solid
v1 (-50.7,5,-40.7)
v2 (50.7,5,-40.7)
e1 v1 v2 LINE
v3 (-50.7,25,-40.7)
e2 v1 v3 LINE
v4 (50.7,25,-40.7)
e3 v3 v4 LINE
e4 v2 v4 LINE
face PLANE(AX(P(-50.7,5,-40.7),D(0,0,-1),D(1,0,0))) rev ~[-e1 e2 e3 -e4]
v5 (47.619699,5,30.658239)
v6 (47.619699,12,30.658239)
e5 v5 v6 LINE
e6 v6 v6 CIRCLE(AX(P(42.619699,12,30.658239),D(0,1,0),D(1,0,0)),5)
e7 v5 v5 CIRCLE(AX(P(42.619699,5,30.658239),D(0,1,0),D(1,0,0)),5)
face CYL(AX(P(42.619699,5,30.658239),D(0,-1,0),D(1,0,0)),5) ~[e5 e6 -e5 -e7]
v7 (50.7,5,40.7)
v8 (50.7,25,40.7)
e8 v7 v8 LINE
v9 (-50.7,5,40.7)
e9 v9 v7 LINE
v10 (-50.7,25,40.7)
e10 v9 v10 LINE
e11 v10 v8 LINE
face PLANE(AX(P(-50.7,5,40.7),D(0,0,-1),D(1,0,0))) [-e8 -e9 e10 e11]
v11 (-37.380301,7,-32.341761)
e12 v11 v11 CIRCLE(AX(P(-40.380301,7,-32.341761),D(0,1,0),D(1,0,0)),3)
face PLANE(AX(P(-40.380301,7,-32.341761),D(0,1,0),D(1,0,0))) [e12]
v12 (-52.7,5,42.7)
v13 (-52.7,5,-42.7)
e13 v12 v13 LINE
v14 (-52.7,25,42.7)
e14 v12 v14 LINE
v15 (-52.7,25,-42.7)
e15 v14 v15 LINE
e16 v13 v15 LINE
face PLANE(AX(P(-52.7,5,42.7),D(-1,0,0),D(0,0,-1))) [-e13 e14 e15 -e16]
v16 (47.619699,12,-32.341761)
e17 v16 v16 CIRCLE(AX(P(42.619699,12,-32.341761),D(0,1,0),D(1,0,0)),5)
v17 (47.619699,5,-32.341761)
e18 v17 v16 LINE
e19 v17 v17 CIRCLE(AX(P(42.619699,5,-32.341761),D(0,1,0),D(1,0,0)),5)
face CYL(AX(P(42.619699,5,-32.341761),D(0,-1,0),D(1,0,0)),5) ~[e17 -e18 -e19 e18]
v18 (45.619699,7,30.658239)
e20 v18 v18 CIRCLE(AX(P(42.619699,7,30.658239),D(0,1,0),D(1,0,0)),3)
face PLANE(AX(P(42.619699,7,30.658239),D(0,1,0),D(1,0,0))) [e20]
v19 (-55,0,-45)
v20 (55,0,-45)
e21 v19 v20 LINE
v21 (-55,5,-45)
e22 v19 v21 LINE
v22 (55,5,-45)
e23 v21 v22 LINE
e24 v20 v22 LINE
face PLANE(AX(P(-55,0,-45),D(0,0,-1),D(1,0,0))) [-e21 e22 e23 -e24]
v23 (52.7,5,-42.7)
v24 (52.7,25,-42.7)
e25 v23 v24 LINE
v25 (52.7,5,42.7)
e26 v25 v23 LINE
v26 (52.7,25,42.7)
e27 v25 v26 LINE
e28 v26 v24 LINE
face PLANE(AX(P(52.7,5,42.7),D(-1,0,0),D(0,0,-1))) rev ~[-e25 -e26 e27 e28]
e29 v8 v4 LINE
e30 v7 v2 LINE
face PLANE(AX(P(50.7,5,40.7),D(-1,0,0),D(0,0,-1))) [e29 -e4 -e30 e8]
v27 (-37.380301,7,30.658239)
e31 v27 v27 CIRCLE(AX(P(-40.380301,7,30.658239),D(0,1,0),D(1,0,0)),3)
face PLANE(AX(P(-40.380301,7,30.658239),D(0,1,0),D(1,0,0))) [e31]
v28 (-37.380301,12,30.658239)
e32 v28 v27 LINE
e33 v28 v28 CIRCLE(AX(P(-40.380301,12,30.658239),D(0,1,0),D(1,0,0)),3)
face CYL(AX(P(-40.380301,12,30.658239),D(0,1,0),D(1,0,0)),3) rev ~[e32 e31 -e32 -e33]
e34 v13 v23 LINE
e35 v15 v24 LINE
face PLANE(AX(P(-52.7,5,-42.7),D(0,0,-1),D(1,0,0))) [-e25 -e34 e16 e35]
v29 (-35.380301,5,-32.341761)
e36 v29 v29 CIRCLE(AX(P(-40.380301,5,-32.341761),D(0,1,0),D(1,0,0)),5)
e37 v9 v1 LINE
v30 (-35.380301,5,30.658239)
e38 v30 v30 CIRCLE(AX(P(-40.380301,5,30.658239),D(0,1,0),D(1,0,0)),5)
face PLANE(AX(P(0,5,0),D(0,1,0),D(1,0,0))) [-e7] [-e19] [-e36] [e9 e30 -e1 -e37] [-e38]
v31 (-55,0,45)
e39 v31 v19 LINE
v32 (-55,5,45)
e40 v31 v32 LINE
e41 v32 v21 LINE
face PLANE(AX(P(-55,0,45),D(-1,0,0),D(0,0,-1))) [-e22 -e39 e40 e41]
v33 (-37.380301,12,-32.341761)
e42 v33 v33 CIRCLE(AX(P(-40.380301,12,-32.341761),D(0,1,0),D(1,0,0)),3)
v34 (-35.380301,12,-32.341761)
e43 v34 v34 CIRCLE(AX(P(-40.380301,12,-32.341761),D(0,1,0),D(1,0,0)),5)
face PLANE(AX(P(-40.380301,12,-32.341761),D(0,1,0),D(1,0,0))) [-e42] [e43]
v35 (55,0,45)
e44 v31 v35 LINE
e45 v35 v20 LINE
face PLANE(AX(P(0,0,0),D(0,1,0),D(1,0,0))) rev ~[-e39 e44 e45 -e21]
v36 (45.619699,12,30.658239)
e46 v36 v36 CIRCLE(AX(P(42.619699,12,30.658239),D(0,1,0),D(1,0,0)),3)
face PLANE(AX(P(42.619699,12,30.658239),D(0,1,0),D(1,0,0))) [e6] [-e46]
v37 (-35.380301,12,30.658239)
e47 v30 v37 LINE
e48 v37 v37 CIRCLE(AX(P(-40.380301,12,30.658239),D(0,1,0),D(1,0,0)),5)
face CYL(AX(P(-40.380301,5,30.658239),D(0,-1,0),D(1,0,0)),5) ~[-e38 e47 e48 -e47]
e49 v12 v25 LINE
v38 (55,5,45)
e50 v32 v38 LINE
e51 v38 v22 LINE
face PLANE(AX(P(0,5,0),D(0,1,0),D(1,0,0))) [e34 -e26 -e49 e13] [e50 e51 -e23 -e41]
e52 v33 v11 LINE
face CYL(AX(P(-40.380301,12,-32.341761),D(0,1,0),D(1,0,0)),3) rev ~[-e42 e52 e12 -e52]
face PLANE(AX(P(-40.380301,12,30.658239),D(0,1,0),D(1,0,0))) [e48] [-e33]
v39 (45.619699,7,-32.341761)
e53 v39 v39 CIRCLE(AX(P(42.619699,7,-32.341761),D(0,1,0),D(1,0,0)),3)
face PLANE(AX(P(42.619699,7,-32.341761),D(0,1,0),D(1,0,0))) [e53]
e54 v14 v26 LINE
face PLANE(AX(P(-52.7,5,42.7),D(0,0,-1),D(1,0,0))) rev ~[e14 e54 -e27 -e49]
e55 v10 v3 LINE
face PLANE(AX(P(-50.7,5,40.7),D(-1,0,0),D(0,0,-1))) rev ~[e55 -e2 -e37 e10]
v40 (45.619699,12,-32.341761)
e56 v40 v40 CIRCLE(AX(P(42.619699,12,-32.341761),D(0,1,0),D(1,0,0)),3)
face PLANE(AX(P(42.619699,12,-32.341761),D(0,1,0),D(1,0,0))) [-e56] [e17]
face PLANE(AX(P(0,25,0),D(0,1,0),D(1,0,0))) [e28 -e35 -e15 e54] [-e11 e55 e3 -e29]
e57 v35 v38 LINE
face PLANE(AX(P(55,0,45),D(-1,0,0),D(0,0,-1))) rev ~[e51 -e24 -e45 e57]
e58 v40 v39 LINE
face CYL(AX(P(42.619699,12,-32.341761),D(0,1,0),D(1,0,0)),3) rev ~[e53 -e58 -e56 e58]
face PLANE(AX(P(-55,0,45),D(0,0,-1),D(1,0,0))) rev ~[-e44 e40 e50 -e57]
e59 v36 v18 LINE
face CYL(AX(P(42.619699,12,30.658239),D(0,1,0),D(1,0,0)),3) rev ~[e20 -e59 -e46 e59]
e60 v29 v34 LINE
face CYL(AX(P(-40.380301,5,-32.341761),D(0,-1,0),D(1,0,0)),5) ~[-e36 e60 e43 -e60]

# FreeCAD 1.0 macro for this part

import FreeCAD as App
import Part
import Sketcher

doc = App.newDocument("Part")
body = doc.addObject("PartDesign::Body", "Body")

# Sketch on XZ plane
sketch1 = body.newObject("Sketcher::SketchObject", "Sketch")
sketch1.AttachmentSupport = (doc.getObject("XZ_Plane"), [""])
sketch1.MapMode = "FlatFace"
sketch1.addGeometry(Part.LineSegment(App.Vector(-55, -45, 0), App.Vector(-55, 45, 0)), False)
sketch1.addGeometry(Part.LineSegment(App.Vector(-55, 45, 0), App.Vector(55, 45, 0)), False)
sketch1.addGeometry(Part.LineSegment(App.Vector(55, 45, 0), App.Vector(55, -45, 0)), False)
sketch1.addGeometry(Part.LineSegment(App.Vector(55, -45, 0), App.Vector(-55, -45, 0)), False)
sketch1.addConstraint(Sketcher.Constraint("Coincident", 0, 2, 1, 1))
sketch1.addConstraint(Sketcher.Constraint("Coincident", 1, 2, 2, 1))
sketch1.addConstraint(Sketcher.Constraint("Coincident", 2, 2, 3, 1))
sketch1.addConstraint(Sketcher.Constraint("Coincident", 3, 2, 0, 1))
sketch1.addConstraint(Sketcher.Constraint("Vertical", 0))
sketch1.addConstraint(Sketcher.Constraint("Horizontal", 1))
sketch1.addConstraint(Sketcher.Constraint("Vertical", 2))
sketch1.addConstraint(Sketcher.Constraint("Horizontal", 3))
sketch1.addConstraint(Sketcher.Constraint("Symmetric", 0, 2, 2, 2, -1, 1))
sketch1.addConstraint(Sketcher.Constraint("DistanceX", 1, 1, 1, 2, 110.0))
sketch1.addConstraint(Sketcher.Constraint("DistanceY", 0, 1, 0, 2, 90.0))
pad1 = body.newObject("PartDesign::Pad", "Pad")
pad1.Profile = sketch1
pad1.Length = 5
pad1.Reversed = True

# Sketch on XZ plane
sketch2 = body.newObject("Sketcher::SketchObject", "Sketch001")
sketch2.AttachmentSupport = (doc.getObject("XZ_Plane"), [""])
sketch2.MapMode = "FlatFace"
sketch2.AttachmentOffset = App.Placement(App.Vector(0, 0, -5), App.Rotation())
sketch2.addGeometry(Part.LineSegment(App.Vector(-52.7, -42.7, 0), App.Vector(-52.7, 42.7, 0)), False)
sketch2.addGeometry(Part.LineSegment(App.Vector(-52.7, 42.7, 0), App.Vector(52.7, 42.7, 0)), False)
sketch2.addGeometry(Part.LineSegment(App.Vector(52.7, 42.7, 0), App.Vector(52.7, -42.7, 0)), False)
sketch2.addGeometry(Part.LineSegment(App.Vector(52.7, -42.7, 0), App.Vector(-52.7, -42.7, 0)), False)
sketch2.addGeometry(Part.LineSegment(App.Vector(50.7, 40.7, 0), App.Vector(-50.7, 40.7, 0)), False)
sketch2.addGeometry(Part.LineSegment(App.Vector(-50.7, 40.7, 0), App.Vector(-50.7, -40.7, 0)), False)
sketch2.addGeometry(Part.LineSegment(App.Vector(-50.7, -40.7, 0), App.Vector(50.7, -40.7, 0)), False)
sketch2.addGeometry(Part.LineSegment(App.Vector(50.7, -40.7, 0), App.Vector(50.7, 40.7, 0)), False)
sketch2.addConstraint(Sketcher.Constraint("Coincident", 0, 2, 1, 1))
sketch2.addConstraint(Sketcher.Constraint("Coincident", 1, 2, 2, 1))
sketch2.addConstraint(Sketcher.Constraint("Coincident", 2, 2, 3, 1))
sketch2.addConstraint(Sketcher.Constraint("Coincident", 3, 2, 0, 1))
sketch2.addConstraint(Sketcher.Constraint("Coincident", 4, 2, 5, 1))
sketch2.addConstraint(Sketcher.Constraint("Coincident", 5, 2, 6, 1))
sketch2.addConstraint(Sketcher.Constraint("Coincident", 6, 2, 7, 1))
sketch2.addConstraint(Sketcher.Constraint("Coincident", 7, 2, 4, 1))
sketch2.addConstraint(Sketcher.Constraint("Vertical", 0))
sketch2.addConstraint(Sketcher.Constraint("Horizontal", 1))
sketch2.addConstraint(Sketcher.Constraint("Vertical", 2))
sketch2.addConstraint(Sketcher.Constraint("Horizontal", 3))
sketch2.addConstraint(Sketcher.Constraint("Horizontal", 4))
sketch2.addConstraint(Sketcher.Constraint("Vertical", 5))
sketch2.addConstraint(Sketcher.Constraint("Horizontal", 6))
sketch2.addConstraint(Sketcher.Constraint("Vertical", 7))
sketch2.addConstraint(Sketcher.Constraint("Symmetric", 0, 2, 2, 2, -1, 1))
sketch2.addConstraint(Sketcher.Constraint("Symmetric", 4, 2, 6, 2, -1, 1))
sketch2.addConstraint(Sketcher.Constraint("DistanceX", 1, 1, 1, 2, 105.4))
sketch2.addConstraint(Sketcher.Constraint("DistanceX", 4, 2, 4, 1, 101.4))
sketch2.addConstraint(Sketcher.Constraint("DistanceY", 0, 1, 0, 2, 85.4))
sketch2.addConstraint(Sketcher.Constraint("DistanceY", 5, 2, 5, 1, 81.4))
pad2 = body.newObject("PartDesign::Pad", "Pad001")
pad2.Profile = sketch2
pad2.Length = 20
pad2.Reversed = True

# Sketch on XZ plane
sketch3 = body.newObject("Sketcher::SketchObject", "Sketch002")
sketch3.AttachmentSupport = (doc.getObject("XZ_Plane"), [""])
sketch3.MapMode = "FlatFace"
sketch3.AttachmentOffset = App.Placement(App.Vector(0, 0, -5), App.Rotation())
sketch3.addGeometry(Part.Circle(App.Vector(-40.380301, -32.341761, 0), App.Vector(0, 0, 1), 5), False)
sketch3.addGeometry(Part.Circle(App.Vector(-40.380301, 30.658239, 0), App.Vector(0, 0, 1), 5), False)
sketch3.addGeometry(Part.Circle(App.Vector(42.619699, 30.658239, 0), App.Vector(0, 0, 1), 5), False)
sketch3.addGeometry(Part.Circle(App.Vector(42.619699, -32.341761, 0), App.Vector(0, 0, 1), 5), False)
sketch3.addConstraint(Sketcher.Constraint("Equal", 0, 1))
sketch3.addConstraint(Sketcher.Constraint("Equal", 1, 2))
sketch3.addConstraint(Sketcher.Constraint("Equal", 2, 3))
sketch3.addConstraint(Sketcher.Constraint("Horizontal", 1, 3, 2, 3))
sketch3.addConstraint(Sketcher.Constraint("Horizontal", 0, 3, 3, 3))
sketch3.addConstraint(Sketcher.Constraint("Vertical", 0, 3, 1, 3))
sketch3.addConstraint(Sketcher.Constraint("Vertical", 2, 3, 3, 3))
sketch3.addConstraint(Sketcher.Constraint("Diameter", 0, 10.0))
sketch3.addConstraint(Sketcher.Constraint("DistanceY", 0, 3, 1, 3, 63.0))
sketch3.addConstraint(Sketcher.Constraint("DistanceX", 1, 3, 2, 3, 83.0))
sketch3.addConstraint(Sketcher.Constraint("DistanceX", 0, 3, -1, 1, 40.380301))
sketch3.addConstraint(Sketcher.Constraint("DistanceY", 0, 3, -1, 1, 32.341761))
pad3 = body.newObject("PartDesign::Pad", "Pad002")
pad3.Profile = sketch3
pad3.Length = 7
pad3.Reversed = True

# Sketch on XZ plane
sketch4 = body.newObject("Sketcher::SketchObject", "Sketch003")
sketch4.AttachmentSupport = (doc.getObject("XZ_Plane"), [""])
sketch4.MapMode = "FlatFace"
sketch4.AttachmentOffset = App.Placement(App.Vector(0, 0, -12), App.Rotation())
sketch4.addGeometry(Part.Circle(App.Vector(-40.380301, -32.341761, 0), App.Vector(0, 0, 1), 3), False)
sketch4.addGeometry(Part.Circle(App.Vector(-40.380301, 30.658239, 0), App.Vector(0, 0, 1), 3), False)
sketch4.addGeometry(Part.Circle(App.Vector(42.619699, 30.658239, 0), App.Vector(0, 0, 1), 3), False)
sketch4.addGeometry(Part.Circle(App.Vector(42.619699, -32.341761, 0), App.Vector(0, 0, 1), 3), False)
sketch4.addConstraint(Sketcher.Constraint("Equal", 0, 1))
sketch4.addConstraint(Sketcher.Constraint("Equal", 1, 2))
sketch4.addConstraint(Sketcher.Constraint("Equal", 2, 3))
sketch4.addConstraint(Sketcher.Constraint("Horizontal", 1, 3, 2, 3))
sketch4.addConstraint(Sketcher.Constraint("Horizontal", 0, 3, 3, 3))
sketch4.addConstraint(Sketcher.Constraint("Vertical", 0, 3, 1, 3))
sketch4.addConstraint(Sketcher.Constraint("Vertical", 2, 3, 3, 3))
sketch4.addConstraint(Sketcher.Constraint("Diameter", 0, 6.0))
sketch4.addConstraint(Sketcher.Constraint("DistanceY", 0, 3, 1, 3, 63.0))
sketch4.addConstraint(Sketcher.Constraint("DistanceX", 1, 3, 2, 3, 83.0))
sketch4.addConstraint(Sketcher.Constraint("DistanceX", 0, 3, -1, 1, 40.380301))
sketch4.addConstraint(Sketcher.Constraint("DistanceY", 0, 3, -1, 1, 32.341761))
pocket1 = body.newObject("PartDesign::Pocket", "Pocket")
pocket1.Profile = sketch4
pocket1.Length = 5
pocket1.Reversed = True

doc.recompute()
